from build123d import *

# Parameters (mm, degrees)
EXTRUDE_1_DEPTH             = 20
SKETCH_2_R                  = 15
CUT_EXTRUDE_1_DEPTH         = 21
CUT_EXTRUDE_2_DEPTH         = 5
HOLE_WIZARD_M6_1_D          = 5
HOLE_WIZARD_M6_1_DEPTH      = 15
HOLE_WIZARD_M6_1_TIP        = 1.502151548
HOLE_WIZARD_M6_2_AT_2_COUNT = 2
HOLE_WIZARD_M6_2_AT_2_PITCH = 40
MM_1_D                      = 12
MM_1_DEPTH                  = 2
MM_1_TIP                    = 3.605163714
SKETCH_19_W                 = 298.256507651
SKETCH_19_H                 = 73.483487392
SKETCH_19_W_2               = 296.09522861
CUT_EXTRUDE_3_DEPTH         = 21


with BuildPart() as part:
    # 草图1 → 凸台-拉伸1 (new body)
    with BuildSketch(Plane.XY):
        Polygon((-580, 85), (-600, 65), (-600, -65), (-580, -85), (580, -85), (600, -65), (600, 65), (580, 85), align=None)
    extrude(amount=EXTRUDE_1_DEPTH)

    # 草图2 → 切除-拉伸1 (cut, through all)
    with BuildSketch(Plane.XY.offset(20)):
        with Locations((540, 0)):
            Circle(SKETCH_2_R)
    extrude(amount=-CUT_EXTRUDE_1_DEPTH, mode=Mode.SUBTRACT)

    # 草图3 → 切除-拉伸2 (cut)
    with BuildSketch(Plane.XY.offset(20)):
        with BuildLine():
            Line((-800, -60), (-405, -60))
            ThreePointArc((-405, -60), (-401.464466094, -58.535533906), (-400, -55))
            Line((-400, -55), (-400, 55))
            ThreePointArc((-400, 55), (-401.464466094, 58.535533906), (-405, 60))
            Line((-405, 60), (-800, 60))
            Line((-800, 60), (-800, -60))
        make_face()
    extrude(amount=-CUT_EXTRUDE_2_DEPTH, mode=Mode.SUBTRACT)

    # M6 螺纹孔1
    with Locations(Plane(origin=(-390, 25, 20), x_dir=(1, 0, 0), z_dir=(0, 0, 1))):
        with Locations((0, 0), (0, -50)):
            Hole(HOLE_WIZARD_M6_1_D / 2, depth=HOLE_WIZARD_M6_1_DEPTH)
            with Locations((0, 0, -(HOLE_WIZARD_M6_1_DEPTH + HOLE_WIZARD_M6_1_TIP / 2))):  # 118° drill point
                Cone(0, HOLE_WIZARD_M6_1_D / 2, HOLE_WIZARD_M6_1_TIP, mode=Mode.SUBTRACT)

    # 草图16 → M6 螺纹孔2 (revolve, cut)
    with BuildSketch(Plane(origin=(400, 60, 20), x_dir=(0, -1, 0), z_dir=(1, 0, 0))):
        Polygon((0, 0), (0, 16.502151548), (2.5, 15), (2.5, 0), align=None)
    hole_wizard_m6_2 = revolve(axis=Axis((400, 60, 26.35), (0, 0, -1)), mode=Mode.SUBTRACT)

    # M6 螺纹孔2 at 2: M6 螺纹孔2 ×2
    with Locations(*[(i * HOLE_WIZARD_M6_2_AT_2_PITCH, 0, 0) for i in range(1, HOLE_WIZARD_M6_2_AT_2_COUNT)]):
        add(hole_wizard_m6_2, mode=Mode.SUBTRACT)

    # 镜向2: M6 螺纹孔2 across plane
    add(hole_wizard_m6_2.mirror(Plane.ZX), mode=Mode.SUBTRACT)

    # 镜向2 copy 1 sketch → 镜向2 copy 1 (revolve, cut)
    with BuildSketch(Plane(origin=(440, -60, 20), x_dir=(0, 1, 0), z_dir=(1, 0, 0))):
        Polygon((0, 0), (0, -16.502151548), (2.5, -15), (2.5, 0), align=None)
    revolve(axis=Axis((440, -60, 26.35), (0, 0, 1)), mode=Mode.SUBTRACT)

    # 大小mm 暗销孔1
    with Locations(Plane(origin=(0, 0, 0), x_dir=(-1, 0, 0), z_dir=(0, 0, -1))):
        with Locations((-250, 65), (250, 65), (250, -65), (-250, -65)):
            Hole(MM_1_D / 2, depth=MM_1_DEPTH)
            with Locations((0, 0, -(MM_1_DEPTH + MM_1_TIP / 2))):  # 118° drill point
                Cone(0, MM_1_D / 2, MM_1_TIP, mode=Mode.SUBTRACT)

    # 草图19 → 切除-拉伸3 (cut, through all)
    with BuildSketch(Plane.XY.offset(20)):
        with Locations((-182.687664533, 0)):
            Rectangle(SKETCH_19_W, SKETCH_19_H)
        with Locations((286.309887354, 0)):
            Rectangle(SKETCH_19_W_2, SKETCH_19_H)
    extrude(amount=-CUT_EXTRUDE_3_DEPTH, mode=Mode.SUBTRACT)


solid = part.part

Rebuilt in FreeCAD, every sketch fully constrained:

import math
import FreeCAD as App
import Part
import Sketcher
from FreeCAD import Vector
Q = App.Units.Quantity

doc = App.newDocument("Part")
params = doc.addObject("Spreadsheet::Sheet", "Params")
for row, (alias, value) in enumerate([
    ("sketch1_width", "1160 mm"),
    ("sketch1_height", "130 mm"),
    ("pad1_length", "20 mm"),
    ("sketch2_diameter", "30 mm"),
    ("sketch3_radius", "5 mm"),
    ("sketch3_width", "395 mm"),
    ("sketch3_height", "110 mm"),
    ("pocket2_length", "5 mm"),
    ("sketch4_diameter", "5 mm"),
    ("hole_diameter", "5 mm"),
    ("hole_depth", "15 mm"),
    ("sketch5_height", "15 mm"),
    ("sketch5_width", "2.5 mm"),
    ("groove_angle", "360 deg"),
    ("linearpattern_pitch", "40 mm"),
    ("sketch6_height", "15 mm"),
    ("sketch6_width", "2.5 mm"),
    ("groove2_angle", "360 deg"),
    ("sketch7_diameter", "12 mm"),
    ("hole2_diameter", "12 mm"),
    ("hole2_depth", "2 mm"),
], start=1):
    params.set(f"A{row}", alias)
    params.set(f"B{row}", "=" + value)
    params.setAlias(f"B{row}", alias)

body = doc.addObject("PartDesign::Body", "Body")

sketch1 = body.newObject("Sketcher::SketchObject", "Sketch")
sketch1.AttachmentSupport = (doc.getObject("XY_Plane"), [""])
sketch1.MapMode = "FlatFace"
sketch1.addGeometry([
    Part.LineSegment(Vector(-580, 85, 0), Vector(-600, 65, 0)),
    Part.LineSegment(Vector(-600, 65, 0), Vector(-600, -65, 0)),
    Part.LineSegment(Vector(-600, -65, 0), Vector(-580, -85, 0)),
    Part.LineSegment(Vector(-580, -85, 0), Vector(580, -85, 0)),
    Part.LineSegment(Vector(580, -85, 0), Vector(600, -65, 0)),
    Part.LineSegment(Vector(600, -65, 0), Vector(600, 65, 0)),
    Part.LineSegment(Vector(600, 65, 0), Vector(580, 85, 0)),
    Part.LineSegment(Vector(580, 85, 0), Vector(-580, 85, 0)),
], False)
sketch1.addConstraint([
    Sketcher.Constraint("Coincident", 0, 2, 1, 1),
    Sketcher.Constraint("Coincident", 1, 2, 2, 1),
    Sketcher.Constraint("Coincident", 2, 2, 3, 1),
    Sketcher.Constraint("Coincident", 3, 2, 4, 1),
    Sketcher.Constraint("Coincident", 4, 2, 5, 1),
    Sketcher.Constraint("Coincident", 5, 2, 6, 1),
    Sketcher.Constraint("Coincident", 6, 2, 7, 1),
    Sketcher.Constraint("Coincident", 7, 2, 0, 1),
    Sketcher.Constraint("Vertical", 1),
    Sketcher.Constraint("Horizontal", 3),
    Sketcher.Constraint("Vertical", 5),
    Sketcher.Constraint("Horizontal", 7),
    Sketcher.Constraint("Symmetric", 0, 2, 4, 2, -1, 1),
    Sketcher.Constraint("Symmetric", 2, 2, 6, 2, -1, 1),
    Sketcher.Constraint("Perpendicular", 0, 2),
    Sketcher.Constraint("Perpendicular", 2, 4),
    Sketcher.Constraint("Perpendicular", 4, 6),
    Sketcher.Constraint("Horizontal", 1, 2, 4, 2),
    Sketcher.Constraint("Vertical", 3, 2, 6, 2),
    Sketcher.Constraint("DistanceX", 3, 1, 3, 2, 1160.0),
    Sketcher.Constraint("DistanceY", 1, 2, 1, 1, 130.0),
    Sketcher.Constraint("DistanceX", 0, 2, -1, 1, 600.0),
])
sketch1.setExpression("Constraints[19]", "Params.sketch1_width")
sketch1.setExpression("Constraints[20]", "Params.sketch1_height")
pad1 = body.newObject("PartDesign::Pad", "Pad")
pad1.Profile = sketch1
pad1.setExpression("Length", "Params.pad1_length")

sketch2 = body.newObject("Sketcher::SketchObject", "Sketch001")
sketch2.AttachmentSupport = (doc.getObject("XY_Plane"), [""])
sketch2.MapMode = "FlatFace"
sketch2.AttachmentOffset = App.Placement(Vector(0, 0, 20), App.Rotation())
sketch2.addGeometry(Part.Circle(Vector(540, 0, 0), Vector(0, 0, 1), 15), False)
sketch2.addConstraint([
    Sketcher.Constraint("PointOnObject", 0, 3, -1),
    Sketcher.Constraint("Diameter", 0, 30.0),
    Sketcher.Constraint("DistanceX", -1, 1, 0, 3, 540.0),
])
sketch2.setExpression("Constraints[1]", "Params.sketch2_diameter")
pocket1 = body.newObject("PartDesign::Pocket", "Pocket")
pocket1.Profile = sketch2
pocket1.Type = "ThroughAll"

sketch3 = body.newObject("Sketcher::SketchObject", "Sketch002")
sketch3.AttachmentSupport = (doc.getObject("XY_Plane"), [""])
sketch3.MapMode = "FlatFace"
sketch3.AttachmentOffset = App.Placement(Vector(0, 0, 20), App.Rotation())
sketch3.addGeometry([
    Part.LineSegment(Vector(-800, -60, 0), Vector(-405, -60, 0)),
    Part.ArcOfCircle(Part.Circle(Vector(-405, -55, 0), Vector(0, 0, 1), 5), math.radians(-90), math.radians(0)),
    Part.LineSegment(Vector(-400, -55, 0), Vector(-400, 55, 0)),
    Part.ArcOfCircle(Part.Circle(Vector(-405, 55, 0), Vector(0, 0, 1), 5), math.radians(0), math.radians(90)),
    Part.LineSegment(Vector(-405, 60, 0), Vector(-800, 60, 0)),
    Part.LineSegment(Vector(-800, 60, 0), Vector(-800, -60, 0)),
], False)
sketch3.addConstraint([
    Sketcher.Constraint("Tangent", 0, 2, 1, 1),
    Sketcher.Constraint("Tangent", 1, 2, 2, 1),
    Sketcher.Constraint("Tangent", 2, 2, 3, 1),
    Sketcher.Constraint("Tangent", 3, 2, 4, 1),
    Sketcher.Constraint("Coincident", 4, 2, 5, 1),
    Sketcher.Constraint("Coincident", 5, 2, 0, 1),
    Sketcher.Constraint("Horizontal", 0),
    Sketcher.Constraint("Vertical", 2),
    Sketcher.Constraint("Horizontal", 4),
    Sketcher.Constraint("Vertical", 5),
    Sketcher.Constraint("Equal", 1, 3),
    Sketcher.Constraint("Radius", 1, 5.0),
    Sketcher.Constraint("DistanceX", 0, 1, 0, 2, 395.0),
    Sketcher.Constraint("DistanceY", 2, 1, 2, 2, 110.0),
    Sketcher.Constraint("DistanceX", 1, 3, -1, 1, 405.0),
    Sketcher.Constraint("DistanceY", 1, 3, -1, 1, 55.0),
])
sketch3.setExpression("Constraints[11]", "Params.sketch3_radius")
sketch3.setExpression("Constraints[12]", "Params.sketch3_width")
sketch3.setExpression("Constraints[13]", "Params.sketch3_height")
pocket2 = body.newObject("PartDesign::Pocket", "Pocket001")
pocket2.Profile = sketch3
pocket2.setExpression("Length", "Params.pocket2_length")

sketch4 = body.newObject("Sketcher::SketchObject", "Sketch003")
sketch4.AttachmentSupport = (doc.getObject("XY_Plane"), [""])
sketch4.MapMode = "FlatFace"
sketch4.AttachmentOffset = App.Placement(Vector(0, 0, 20), App.Rotation())
sketch4.addGeometry([
    Part.Circle(Vector(-390, 25, 0), Vector(0, 0, 1), 2.5),
    Part.Circle(Vector(-390, -25, 0), Vector(0, 0, 1), 2.5),
], False)
sketch4.addConstraint([
    Sketcher.Constraint("Equal", 0, 1),
    Sketcher.Constraint("Symmetric", 0, 3, 1, 3, -1),
    Sketcher.Constraint("Diameter", 0, 5.0),
    Sketcher.Constraint("DistanceX", 0, 3, -1, 1, 390.0),
    Sketcher.Constraint("DistanceY", -1, 1, 0, 3, 25.0),
])
sketch4.setExpression("Constraints[2]", "Params.sketch4_diameter")
doc.recompute()
hole = body.newObject("PartDesign::Hole", "Hole")
hole.Profile = sketch4
hole.ThreadType = "None"
hole.setExpression("Diameter", "Params.hole_diameter")
hole.DepthType = "Dimension"
hole.setExpression("Depth", "Params.hole_depth")
hole.DrillPoint = "Angled"
hole.DrillPointAngle = 118

sketch5 = body.newObject("Sketcher::SketchObject", "Sketch004")
sketch5.AttachmentSupport = (doc.getObject("YZ_Plane"), [""])
sketch5.MapMode = "FlatFace"
sketch5.AttachmentOffset = App.Placement(Vector(0, 0, 400), App.Rotation())
sketch5.addGeometry([
    Part.LineSegment(Vector(60, 3.497848, 0), Vector(60, 20, 0)),
    Part.LineSegment(Vector(60, 20, 0), Vector(57.5, 20, 0)),
    Part.LineSegment(Vector(57.5, 20, 0), Vector(57.5, 5, 0)),
    Part.LineSegment(Vector(57.5, 5, 0), Vector(60, 3.497848, 0)),
], False)
sketch5.addGeometry(Part.LineSegment(Vector(60, 20, 0), Vector(60, 3.497848, 0)), True)
sketch5.addConstraint([
    Sketcher.Constraint("Coincident", 0, 2, 1, 1),
    Sketcher.Constraint("Coincident", 1, 2, 2, 1),
    Sketcher.Constraint("Coincident", 2, 2, 3, 1),
    Sketcher.Constraint("Coincident", 3, 2, 0, 1),
    Sketcher.Constraint("Vertical", 0),
    Sketcher.Constraint("Horizontal", 1),
    Sketcher.Constraint("Vertical", 2),
    Sketcher.Constraint("Vertical", 4),
    Sketcher.Constraint("Coincident", 4, 1, 0, 2),
    Sketcher.Constraint("Equal", 0, 4),
    Sketcher.Constraint("DistanceY", 2, 2, 2, 1, 15.0),
    Sketcher.Constraint("Angle", 3, Q("-31 deg")),
    Sketcher.Constraint("DistanceX", 1, 2, 1, 1, 2.5),
    Sketcher.Constraint("DistanceX", -1, 1, 0, 2, 60.0),
    Sketcher.Constraint("DistanceY", -1, 1, 0, 2, 20.0),
])
sketch5.setExpression("Constraints[10]", "Params.sketch5_height")
sketch5.setExpression("Constraints[12]", "Params.sketch5_width")
groove = body.newObject("PartDesign::Groove", "Groove")
groove.Profile = sketch5
groove.ReferenceAxis = (sketch5, ["Axis0"])
groove.setExpression("Angle", "Params.groove_angle")
doc.recompute()

linearpattern = body.newObject("PartDesign::LinearPattern", "LinearPattern")
linearpattern.Originals = [groove]
linearpattern.Direction = (doc.getObject("X_Axis"), [""])
linearpattern.Mode = "offset"
linearpattern.setExpression("Offset", "Params.linearpattern_pitch")
linearpattern.Occurrences = 2
body.Tip = linearpattern
doc.recompute()

mirrored = body.newObject("PartDesign::Mirrored", "Mirrored")
mirrored.Originals = [groove]
mirrored.MirrorPlane = (doc.getObject("XZ_Plane"), [""])
body.Tip = mirrored

sketch6 = body.newObject("Sketcher::SketchObject", "Sketch005")
sketch6.AttachmentSupport = (doc.getObject("YZ_Plane"), [""])
sketch6.MapMode = "FlatFace"
sketch6.AttachmentOffset = App.Placement(Vector(0, 0, 440), App.Rotation())
sketch6.addGeometry([
    Part.LineSegment(Vector(-60, 20, 0), Vector(-60, 3.497848, 0)),
    Part.LineSegment(Vector(-60, 3.497848, 0), Vector(-57.5, 5, 0)),
    Part.LineSegment(Vector(-57.5, 5, 0), Vector(-57.5, 20, 0)),
    Part.LineSegment(Vector(-57.5, 20, 0), Vector(-60, 20, 0)),
], False)
sketch6.addGeometry(Part.LineSegment(Vector(-60, 3.497848, 0), Vector(-60, 20, 0)), True)
sketch6.addConstraint([
    Sketcher.Constraint("Coincident", 0, 2, 1, 1),
    Sketcher.Constraint("Coincident", 1, 2, 2, 1),
    Sketcher.Constraint("Coincident", 2, 2, 3, 1),
    Sketcher.Constraint("Coincident", 3, 2, 0, 1),
    Sketcher.Constraint("Vertical", 0),
    Sketcher.Constraint("Vertical", 2),
    Sketcher.Constraint("Horizontal", 3),
    Sketcher.Constraint("Vertical", 4),
    Sketcher.Constraint("Coincident", 4, 1, 0, 2),
    Sketcher.Constraint("Horizontal", 2, 2, 4, 2),
    Sketcher.Constraint("DistanceY", 2, 1, 2, 2, 15.0),
    Sketcher.Constraint("Angle", 1, Q("31 deg")),
    Sketcher.Constraint("DistanceX", 3, 2, 3, 1, 2.5),
    Sketcher.Constraint("DistanceX", 0, 2, -1, 1, 60.0),
    Sketcher.Constraint("DistanceY", -1, 1, 1, 2, 5.0),
])
sketch6.setExpression("Constraints[10]", "Params.sketch6_height")
sketch6.setExpression("Constraints[12]", "Params.sketch6_width")
groove2 = body.newObject("PartDesign::Groove", "Groove001")
groove2.Profile = sketch6
groove2.ReferenceAxis = (sketch6, ["Axis0"])
groove2.setExpression("Angle", "Params.groove2_angle")

sketch7 = body.newObject("Sketcher::SketchObject", "Sketch006")
sketch7.AttachmentSupport = (doc.getObject("XY_Plane"), [""])
sketch7.MapMode = "FlatFace"
sketch7.addGeometry([
    Part.Circle(Vector(250, 65, 0), Vector(0, 0, 1), 6),
    Part.Circle(Vector(-250, 65, 0), Vector(0, 0, 1), 6),
    Part.Circle(Vector(-250, -65, 0), Vector(0, 0, 1), 6),
    Part.Circle(Vector(250, -65, 0), Vector(0, 0, 1), 6),
], False)
sketch7.addConstraint([
    Sketcher.Constraint("Equal", 0, 1),
    Sketcher.Constraint("Equal", 1, 2),
    Sketcher.Constraint("Equal", 2, 3),
    Sketcher.Constraint("Symmetric", 0, 3, 2, 3, -1, 1),
    Sketcher.Constraint("Symmetric", 1, 3, 3, 3, -1, 1),
    Sketcher.Constraint("Symmetric", 0, 3, 1, 3, -2),
    Sketcher.Constraint("Diameter", 0, 12.0),
    Sketcher.Constraint("DistanceX", -1, 1, 0, 3, 250.0),
    Sketcher.Constraint("DistanceY", -1, 1, 0, 3, 65.0),
])
sketch7.setExpression("Constraints[6]", "Params.sketch7_diameter")
doc.recompute()
hole2 = body.newObject("PartDesign::Hole", "Hole001")
hole2.Profile = sketch7
hole2.ThreadType = "None"
hole2.setExpression("Diameter", "Params.hole2_diameter")
hole2.DepthType = "Dimension"
hole2.setExpression("Depth", "Params.hole2_depth")
hole2.DrillPoint = "Angled"
hole2.DrillPointAngle = 118
hole2.Reversed = True

sketch8 = body.newObject("Sketcher::SketchObject", "Sketch007")
sketch8.AttachmentSupport = (doc.getObject("XY_Plane"), [""])
sketch8.MapMode = "FlatFace"
sketch8.AttachmentOffset = App.Placement(Vector(0, 0, 20), App.Rotation())
sketch8.addGeometry([
    Part.LineSegment(Vector(-331.815918, 36.741744, 0), Vector(-331.815918, -36.741744, 0)),
    Part.LineSegment(Vector(-331.815918, -36.741744, 0), Vector(-33.559411, -36.741744, 0)),
    Part.LineSegment(Vector(-33.559411, -36.741744, 0), Vector(-33.559411, 36.741744, 0)),
    Part.LineSegment(Vector(-33.559411, 36.741744, 0), Vector(-331.815918, 36.741744, 0)),
    Part.LineSegment(Vector(138.262273, 36.741744, 0), Vector(138.262273, -36.741744, 0)),
    Part.LineSegment(Vector(138.262273, -36.741744, 0), Vector(434.357502, -36.741744, 0)),
    Part.LineSegment(Vector(434.357502, -36.741744, 0), Vector(434.357502, 36.741744, 0)),
    Part.LineSegment(Vector(434.357502, 36.741744, 0), Vector(138.262273, 36.741744, 0)),
], False)
sketch8.addConstraint([
    Sketcher.Constraint("Coincident", 0, 2, 1, 1),
    Sketcher.Constraint("Coincident", 1, 2, 2, 1),
    Sketcher.Constraint("Coincident", 2, 2, 3, 1),
    Sketcher.Constraint("Coincident", 3, 2, 0, 1),
    Sketcher.Constraint("Coincident", 4, 2, 5, 1),
    Sketcher.Constraint("Coincident", 5, 2, 6, 1),
    Sketcher.Constraint("Coincident", 6, 2, 7, 1),
    Sketcher.Constraint("Coincident", 7, 2, 4, 1),
    Sketcher.Constraint("Vertical", 0),
    Sketcher.Constraint("Horizontal", 1),
    Sketcher.Constraint("Vertical", 2),
    Sketcher.Constraint("Horizontal", 3),
    Sketcher.Constraint("Vertical", 4),
    Sketcher.Constraint("Horizontal", 5),
    Sketcher.Constraint("Vertical", 6),
    Sketcher.Constraint("Horizontal", 7),
    Sketcher.Constraint("Horizontal", 1, 2, 4, 2),
    Sketcher.Constraint("Horizontal", 3, 2, 6, 2),
    Sketcher.Constraint("DistanceX", 5, 1, 5, 2, 296.095229),
    Sketcher.Constraint("DistanceX", -1, 1, 5, 2, 434.357502),
    Sketcher.Constraint("DistanceX", 1, 1, 1, 2, 298.256508),
    Sketcher.Constraint("DistanceY", 0, 2, 0, 1, 73.483487),
    Sketcher.Constraint("DistanceX", 0, 2, -1, 1, 331.815918),
    Sketcher.Constraint("DistanceY", 0, 2, -1, 1, 36.741744),
])
pocket3 = body.newObject("PartDesign::Pocket", "Pocket002")
pocket3.Profile = sketch8
pocket3.Type = "ThroughAll"

doc.recompute()
